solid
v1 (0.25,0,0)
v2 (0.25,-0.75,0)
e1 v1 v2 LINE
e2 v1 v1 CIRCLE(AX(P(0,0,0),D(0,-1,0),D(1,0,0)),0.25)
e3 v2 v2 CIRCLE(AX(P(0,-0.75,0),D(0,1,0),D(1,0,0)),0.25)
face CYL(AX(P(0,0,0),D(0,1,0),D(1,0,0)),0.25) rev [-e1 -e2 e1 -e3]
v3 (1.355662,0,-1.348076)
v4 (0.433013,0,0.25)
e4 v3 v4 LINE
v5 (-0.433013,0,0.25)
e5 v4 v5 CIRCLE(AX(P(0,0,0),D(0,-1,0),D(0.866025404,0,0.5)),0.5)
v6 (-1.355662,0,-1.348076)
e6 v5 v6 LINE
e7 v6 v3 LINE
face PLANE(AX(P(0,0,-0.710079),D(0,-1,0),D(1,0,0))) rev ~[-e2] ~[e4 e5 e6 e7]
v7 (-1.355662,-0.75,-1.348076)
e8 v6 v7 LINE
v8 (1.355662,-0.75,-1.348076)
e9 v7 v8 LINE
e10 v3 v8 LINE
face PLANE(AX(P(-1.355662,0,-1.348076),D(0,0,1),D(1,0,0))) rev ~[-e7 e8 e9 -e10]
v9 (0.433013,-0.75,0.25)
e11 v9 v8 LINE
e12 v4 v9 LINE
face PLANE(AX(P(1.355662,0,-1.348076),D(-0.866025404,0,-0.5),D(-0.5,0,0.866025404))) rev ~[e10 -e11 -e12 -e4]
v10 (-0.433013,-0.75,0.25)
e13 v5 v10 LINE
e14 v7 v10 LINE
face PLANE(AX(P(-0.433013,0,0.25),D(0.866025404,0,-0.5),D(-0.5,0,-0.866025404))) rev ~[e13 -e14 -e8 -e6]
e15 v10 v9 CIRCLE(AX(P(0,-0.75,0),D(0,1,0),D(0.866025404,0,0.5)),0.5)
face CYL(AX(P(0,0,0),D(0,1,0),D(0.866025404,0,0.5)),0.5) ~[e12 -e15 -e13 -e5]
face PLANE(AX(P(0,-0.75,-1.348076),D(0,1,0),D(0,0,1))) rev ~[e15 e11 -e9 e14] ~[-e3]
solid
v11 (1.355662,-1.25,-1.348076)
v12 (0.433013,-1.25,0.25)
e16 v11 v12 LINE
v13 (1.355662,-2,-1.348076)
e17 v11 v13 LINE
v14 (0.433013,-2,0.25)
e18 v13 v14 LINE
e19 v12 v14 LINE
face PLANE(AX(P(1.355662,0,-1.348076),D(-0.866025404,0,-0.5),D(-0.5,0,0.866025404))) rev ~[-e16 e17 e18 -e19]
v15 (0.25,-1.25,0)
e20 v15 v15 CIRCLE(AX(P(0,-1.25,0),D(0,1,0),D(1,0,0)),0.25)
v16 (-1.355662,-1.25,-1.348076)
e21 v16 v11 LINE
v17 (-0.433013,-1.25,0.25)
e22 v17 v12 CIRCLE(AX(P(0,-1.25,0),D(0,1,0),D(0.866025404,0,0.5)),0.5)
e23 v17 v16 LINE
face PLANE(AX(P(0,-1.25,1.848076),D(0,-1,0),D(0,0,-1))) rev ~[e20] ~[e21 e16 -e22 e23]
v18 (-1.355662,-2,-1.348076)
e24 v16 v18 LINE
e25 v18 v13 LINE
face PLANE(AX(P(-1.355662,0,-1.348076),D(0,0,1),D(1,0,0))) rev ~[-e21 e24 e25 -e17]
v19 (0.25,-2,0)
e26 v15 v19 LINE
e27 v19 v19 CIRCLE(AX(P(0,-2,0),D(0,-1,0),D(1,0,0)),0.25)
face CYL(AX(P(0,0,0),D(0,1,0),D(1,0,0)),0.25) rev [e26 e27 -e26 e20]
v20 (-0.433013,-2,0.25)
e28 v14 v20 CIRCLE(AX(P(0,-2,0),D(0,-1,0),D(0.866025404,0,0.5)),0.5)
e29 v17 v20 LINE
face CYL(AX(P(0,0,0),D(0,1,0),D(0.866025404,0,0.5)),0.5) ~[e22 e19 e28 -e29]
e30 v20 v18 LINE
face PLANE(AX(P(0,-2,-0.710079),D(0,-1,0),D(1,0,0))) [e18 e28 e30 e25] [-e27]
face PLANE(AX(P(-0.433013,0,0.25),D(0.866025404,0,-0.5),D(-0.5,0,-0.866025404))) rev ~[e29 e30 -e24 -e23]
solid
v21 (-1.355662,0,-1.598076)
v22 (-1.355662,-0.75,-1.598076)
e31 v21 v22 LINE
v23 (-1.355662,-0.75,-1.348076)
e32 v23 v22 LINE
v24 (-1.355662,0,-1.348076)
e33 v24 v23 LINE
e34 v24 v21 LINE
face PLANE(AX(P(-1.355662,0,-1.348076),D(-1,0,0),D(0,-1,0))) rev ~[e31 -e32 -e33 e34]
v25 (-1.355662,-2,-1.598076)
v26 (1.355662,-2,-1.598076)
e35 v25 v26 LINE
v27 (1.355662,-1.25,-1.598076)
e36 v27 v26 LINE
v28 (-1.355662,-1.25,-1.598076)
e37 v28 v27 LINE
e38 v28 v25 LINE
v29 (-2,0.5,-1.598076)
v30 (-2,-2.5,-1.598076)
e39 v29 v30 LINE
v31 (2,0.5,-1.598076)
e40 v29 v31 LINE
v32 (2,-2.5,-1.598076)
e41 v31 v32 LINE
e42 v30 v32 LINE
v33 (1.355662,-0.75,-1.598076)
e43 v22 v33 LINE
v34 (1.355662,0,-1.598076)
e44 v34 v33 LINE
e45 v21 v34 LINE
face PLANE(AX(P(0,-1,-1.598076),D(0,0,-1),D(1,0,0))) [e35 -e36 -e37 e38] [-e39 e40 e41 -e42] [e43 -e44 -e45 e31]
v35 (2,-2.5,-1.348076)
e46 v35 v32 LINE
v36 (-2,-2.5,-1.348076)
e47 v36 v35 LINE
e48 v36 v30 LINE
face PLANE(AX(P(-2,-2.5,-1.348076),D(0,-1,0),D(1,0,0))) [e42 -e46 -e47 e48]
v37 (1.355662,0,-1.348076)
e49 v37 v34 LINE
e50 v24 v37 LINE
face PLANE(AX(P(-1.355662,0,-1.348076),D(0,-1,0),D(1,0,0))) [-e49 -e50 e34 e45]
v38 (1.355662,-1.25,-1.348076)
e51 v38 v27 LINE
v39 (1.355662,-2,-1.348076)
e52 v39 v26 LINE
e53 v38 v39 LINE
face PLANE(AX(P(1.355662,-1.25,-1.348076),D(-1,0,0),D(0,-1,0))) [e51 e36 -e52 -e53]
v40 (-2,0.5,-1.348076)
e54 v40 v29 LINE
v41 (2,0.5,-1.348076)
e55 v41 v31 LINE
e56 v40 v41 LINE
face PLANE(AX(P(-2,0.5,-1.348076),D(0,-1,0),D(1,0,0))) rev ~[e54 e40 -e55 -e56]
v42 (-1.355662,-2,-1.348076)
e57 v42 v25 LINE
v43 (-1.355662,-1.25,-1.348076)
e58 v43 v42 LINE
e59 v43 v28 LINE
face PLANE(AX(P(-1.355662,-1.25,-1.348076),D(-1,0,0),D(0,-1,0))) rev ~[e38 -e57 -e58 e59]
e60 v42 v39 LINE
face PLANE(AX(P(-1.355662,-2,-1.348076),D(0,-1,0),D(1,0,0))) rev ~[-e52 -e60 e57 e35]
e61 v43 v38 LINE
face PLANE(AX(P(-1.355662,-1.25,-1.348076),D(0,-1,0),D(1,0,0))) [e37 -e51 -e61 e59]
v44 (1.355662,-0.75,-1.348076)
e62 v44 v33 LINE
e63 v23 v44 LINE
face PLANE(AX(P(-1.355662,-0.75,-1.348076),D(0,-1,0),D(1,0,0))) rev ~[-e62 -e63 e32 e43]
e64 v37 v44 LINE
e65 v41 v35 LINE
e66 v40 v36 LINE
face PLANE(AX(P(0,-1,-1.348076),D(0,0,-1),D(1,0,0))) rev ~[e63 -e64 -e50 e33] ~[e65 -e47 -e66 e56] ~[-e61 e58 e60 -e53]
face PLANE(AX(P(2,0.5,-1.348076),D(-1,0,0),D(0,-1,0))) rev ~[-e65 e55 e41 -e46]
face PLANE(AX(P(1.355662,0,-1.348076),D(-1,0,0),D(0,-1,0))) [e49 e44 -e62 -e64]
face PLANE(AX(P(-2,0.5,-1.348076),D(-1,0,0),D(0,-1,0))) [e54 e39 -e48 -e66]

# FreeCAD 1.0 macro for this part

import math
import FreeCAD as App
import Part
import Sketcher
Q = App.Units.Quantity


def add_polygon(sketch, points):
    """Adds a closed chain of lines whose ends are joined by coincident constraints."""
    first, n = sketch.GeometryCount, len(points)
    for a, b in zip(points, points[1:] + points[:1]):
        sketch.addGeometry(Part.LineSegment(App.Vector(*a, 0), App.Vector(*b, 0)), False)
    for i in range(n):
        sketch.addConstraint(Sketcher.Constraint("Coincident", first + i, 2, first + (i + 1) % n, 1))

doc = App.newDocument("Part")
body = doc.addObject("PartDesign::Body", "Body")
body.AllowCompound = True

# Sketch on XZ plane
sketch1 = body.newObject("Sketcher::SketchObject", "Sketch")
sketch1.AttachmentSupport = (doc.getObject("XZ_Plane"), [""])
sketch1.MapMode = "FlatFace"
sketch1.addGeometry([
    Part.ArcOfCircle(Part.Circle(App.Vector(0, 0, 0), App.Vector(0, 0, 1), 0.5), math.radians(30), math.radians(150)),  # 0
    Part.LineSegment(App.Vector(-0.433013, 0.25, 0), App.Vector(-1.355662, -1.348076, 0)),  # 1
    Part.LineSegment(App.Vector(-1.355662, -1.348076, 0), App.Vector(1.355662, -1.348076, 0)),  # 2
    Part.LineSegment(App.Vector(1.355662, -1.348076, 0), App.Vector(0.433013, 0.25, 0)),  # 3
    Part.Circle(App.Vector(0, 0, 0), App.Vector(0, 0, 1), 0.25),  # 4
], False)
sketch1.addConstraint([
    Sketcher.Constraint("Tangent", 0, 2, 1, 1),
    Sketcher.Constraint("Coincident", 1, 2, 2, 1),
    Sketcher.Constraint("Coincident", 2, 2, 3, 1),
    Sketcher.Constraint("Tangent", 3, 2, 0, 1),
    Sketcher.Constraint("Horizontal", 2),
    Sketcher.Constraint("Coincident", 0, 3, -1, 1),
    Sketcher.Constraint("Coincident", 4, 3, -1, 1),
    Sketcher.Constraint("Horizontal", 0, 2, 3, 2),
    Sketcher.Constraint("Diameter", 4, 0.5),
    Sketcher.Constraint("Radius", 0, 0.5),
    Sketcher.Constraint("Angle", 1, Q("-120 deg")),
    Sketcher.Constraint("Distance", 1, 1.845299),
])
pad1 = body.newObject("PartDesign::Pad", "Pad")
pad1.Profile = sketch1
pad1.Length = 2

# Sketch on YZ plane
sketch2 = body.newObject("Sketcher::SketchObject", "Sketch001")
sketch2.AttachmentSupport = (doc.getObject("YZ_Plane"), [""])
sketch2.MapMode = "FlatFace"
add_polygon(sketch2, [(-1.25, 1.848076), (-1.25, -1.348076), (-0.75, -1.348076), (-0.75, 1.848076)])  # lines 0-3
sketch2.addConstraint([
    Sketcher.Constraint("Vertical", 0),
    Sketcher.Constraint("Horizontal", 1),
    Sketcher.Constraint("Vertical", 2),
    Sketcher.Constraint("Horizontal", 3),
    Sketcher.Constraint("DistanceX", 1, 1, 1, 2, 0.5),
    Sketcher.Constraint("DistanceX", 0, 2, -1, 1, 1.25),
    Sketcher.Constraint("DistanceY", 0, 2, 0, 1, 3.196152),
    Sketcher.Constraint("DistanceY", 0, 2, -1, 1, 1.348076),
])
pocket1 = body.newObject("PartDesign::Pocket", "Pocket")
pocket1.Profile = sketch2
pocket1.Length = 25
pocket1.Midplane = True
body2 = doc.addObject("PartDesign::Body", "Body001")

# Sketch on XY plane
sketch3 = body2.newObject("Sketcher::SketchObject", "Sketch002")
sketch3.AttachmentSupport = (doc.getObject("XY_Plane001"), [""])
sketch3.MapMode = "FlatFace"
sketch3.AttachmentOffset = App.Placement(App.Vector(0, 0, -1.348076), App.Rotation())
add_polygon(sketch3, [(-2, -2.5), (-2, 0.5), (2, 0.5), (2, -2.5)])  # lines 0-3
add_polygon(sketch3, [(1.355662, 0), (-1.355662, 0), (-1.355662, -0.75), (1.355662, -0.75)])  # lines 4-7
add_polygon(sketch3, [(1.355662, -1.25), (-1.355662, -1.25), (-1.355662, -2), (1.355662, -2)])  # lines 8-11
sketch3.addConstraint([
    Sketcher.Constraint("Vertical", 0),
    Sketcher.Constraint("Horizontal", 1),
    Sketcher.Constraint("Vertical", 2),
    Sketcher.Constraint("Horizontal", 3),
    Sketcher.Constraint("Horizontal", 4),
    Sketcher.Constraint("Vertical", 5),
    Sketcher.Constraint("Horizontal", 6),
    Sketcher.Constraint("Vertical", 7),
    Sketcher.Constraint("Horizontal", 8),
    Sketcher.Constraint("Vertical", 9),
    Sketcher.Constraint("Horizontal", 10),
    Sketcher.Constraint("Vertical", 11),
    Sketcher.Constraint("Symmetric", 4, 2, 7, 2, -1, 1),
    Sketcher.Constraint("Vertical", 5, 2, 8, 2),
    Sketcher.Constraint("Vertical", 7, 2, 10, 2),
    Sketcher.Constraint("Equal", 7, 9),
    Sketcher.Constraint("DistanceX", 1, 1, 1, 2, 4.0),
    Sketcher.Constraint("DistanceY", 0, 1, 0, 2, 3.0),
    Sketcher.Constraint("DistanceX", 0, 2, -1, 1, 2.0),
    Sketcher.Constraint("DistanceY", 9, 2, -1, 1, 2.0),
    Sketcher.Constraint("DistanceY", 5, 2, 5, 1, 0.75),
    Sketcher.Constraint("DistanceY", -1, 1, 0, 2, 0.5),
    Sketcher.Constraint("DistanceX", 4, 2, 4, 1, 2.711325),
])
pad2 = body2.newObject("PartDesign::Pad", "Pad001")
pad2.Profile = sketch3
pad2.Length = 0.25
pad2.Reversed = True

doc.recompute()
